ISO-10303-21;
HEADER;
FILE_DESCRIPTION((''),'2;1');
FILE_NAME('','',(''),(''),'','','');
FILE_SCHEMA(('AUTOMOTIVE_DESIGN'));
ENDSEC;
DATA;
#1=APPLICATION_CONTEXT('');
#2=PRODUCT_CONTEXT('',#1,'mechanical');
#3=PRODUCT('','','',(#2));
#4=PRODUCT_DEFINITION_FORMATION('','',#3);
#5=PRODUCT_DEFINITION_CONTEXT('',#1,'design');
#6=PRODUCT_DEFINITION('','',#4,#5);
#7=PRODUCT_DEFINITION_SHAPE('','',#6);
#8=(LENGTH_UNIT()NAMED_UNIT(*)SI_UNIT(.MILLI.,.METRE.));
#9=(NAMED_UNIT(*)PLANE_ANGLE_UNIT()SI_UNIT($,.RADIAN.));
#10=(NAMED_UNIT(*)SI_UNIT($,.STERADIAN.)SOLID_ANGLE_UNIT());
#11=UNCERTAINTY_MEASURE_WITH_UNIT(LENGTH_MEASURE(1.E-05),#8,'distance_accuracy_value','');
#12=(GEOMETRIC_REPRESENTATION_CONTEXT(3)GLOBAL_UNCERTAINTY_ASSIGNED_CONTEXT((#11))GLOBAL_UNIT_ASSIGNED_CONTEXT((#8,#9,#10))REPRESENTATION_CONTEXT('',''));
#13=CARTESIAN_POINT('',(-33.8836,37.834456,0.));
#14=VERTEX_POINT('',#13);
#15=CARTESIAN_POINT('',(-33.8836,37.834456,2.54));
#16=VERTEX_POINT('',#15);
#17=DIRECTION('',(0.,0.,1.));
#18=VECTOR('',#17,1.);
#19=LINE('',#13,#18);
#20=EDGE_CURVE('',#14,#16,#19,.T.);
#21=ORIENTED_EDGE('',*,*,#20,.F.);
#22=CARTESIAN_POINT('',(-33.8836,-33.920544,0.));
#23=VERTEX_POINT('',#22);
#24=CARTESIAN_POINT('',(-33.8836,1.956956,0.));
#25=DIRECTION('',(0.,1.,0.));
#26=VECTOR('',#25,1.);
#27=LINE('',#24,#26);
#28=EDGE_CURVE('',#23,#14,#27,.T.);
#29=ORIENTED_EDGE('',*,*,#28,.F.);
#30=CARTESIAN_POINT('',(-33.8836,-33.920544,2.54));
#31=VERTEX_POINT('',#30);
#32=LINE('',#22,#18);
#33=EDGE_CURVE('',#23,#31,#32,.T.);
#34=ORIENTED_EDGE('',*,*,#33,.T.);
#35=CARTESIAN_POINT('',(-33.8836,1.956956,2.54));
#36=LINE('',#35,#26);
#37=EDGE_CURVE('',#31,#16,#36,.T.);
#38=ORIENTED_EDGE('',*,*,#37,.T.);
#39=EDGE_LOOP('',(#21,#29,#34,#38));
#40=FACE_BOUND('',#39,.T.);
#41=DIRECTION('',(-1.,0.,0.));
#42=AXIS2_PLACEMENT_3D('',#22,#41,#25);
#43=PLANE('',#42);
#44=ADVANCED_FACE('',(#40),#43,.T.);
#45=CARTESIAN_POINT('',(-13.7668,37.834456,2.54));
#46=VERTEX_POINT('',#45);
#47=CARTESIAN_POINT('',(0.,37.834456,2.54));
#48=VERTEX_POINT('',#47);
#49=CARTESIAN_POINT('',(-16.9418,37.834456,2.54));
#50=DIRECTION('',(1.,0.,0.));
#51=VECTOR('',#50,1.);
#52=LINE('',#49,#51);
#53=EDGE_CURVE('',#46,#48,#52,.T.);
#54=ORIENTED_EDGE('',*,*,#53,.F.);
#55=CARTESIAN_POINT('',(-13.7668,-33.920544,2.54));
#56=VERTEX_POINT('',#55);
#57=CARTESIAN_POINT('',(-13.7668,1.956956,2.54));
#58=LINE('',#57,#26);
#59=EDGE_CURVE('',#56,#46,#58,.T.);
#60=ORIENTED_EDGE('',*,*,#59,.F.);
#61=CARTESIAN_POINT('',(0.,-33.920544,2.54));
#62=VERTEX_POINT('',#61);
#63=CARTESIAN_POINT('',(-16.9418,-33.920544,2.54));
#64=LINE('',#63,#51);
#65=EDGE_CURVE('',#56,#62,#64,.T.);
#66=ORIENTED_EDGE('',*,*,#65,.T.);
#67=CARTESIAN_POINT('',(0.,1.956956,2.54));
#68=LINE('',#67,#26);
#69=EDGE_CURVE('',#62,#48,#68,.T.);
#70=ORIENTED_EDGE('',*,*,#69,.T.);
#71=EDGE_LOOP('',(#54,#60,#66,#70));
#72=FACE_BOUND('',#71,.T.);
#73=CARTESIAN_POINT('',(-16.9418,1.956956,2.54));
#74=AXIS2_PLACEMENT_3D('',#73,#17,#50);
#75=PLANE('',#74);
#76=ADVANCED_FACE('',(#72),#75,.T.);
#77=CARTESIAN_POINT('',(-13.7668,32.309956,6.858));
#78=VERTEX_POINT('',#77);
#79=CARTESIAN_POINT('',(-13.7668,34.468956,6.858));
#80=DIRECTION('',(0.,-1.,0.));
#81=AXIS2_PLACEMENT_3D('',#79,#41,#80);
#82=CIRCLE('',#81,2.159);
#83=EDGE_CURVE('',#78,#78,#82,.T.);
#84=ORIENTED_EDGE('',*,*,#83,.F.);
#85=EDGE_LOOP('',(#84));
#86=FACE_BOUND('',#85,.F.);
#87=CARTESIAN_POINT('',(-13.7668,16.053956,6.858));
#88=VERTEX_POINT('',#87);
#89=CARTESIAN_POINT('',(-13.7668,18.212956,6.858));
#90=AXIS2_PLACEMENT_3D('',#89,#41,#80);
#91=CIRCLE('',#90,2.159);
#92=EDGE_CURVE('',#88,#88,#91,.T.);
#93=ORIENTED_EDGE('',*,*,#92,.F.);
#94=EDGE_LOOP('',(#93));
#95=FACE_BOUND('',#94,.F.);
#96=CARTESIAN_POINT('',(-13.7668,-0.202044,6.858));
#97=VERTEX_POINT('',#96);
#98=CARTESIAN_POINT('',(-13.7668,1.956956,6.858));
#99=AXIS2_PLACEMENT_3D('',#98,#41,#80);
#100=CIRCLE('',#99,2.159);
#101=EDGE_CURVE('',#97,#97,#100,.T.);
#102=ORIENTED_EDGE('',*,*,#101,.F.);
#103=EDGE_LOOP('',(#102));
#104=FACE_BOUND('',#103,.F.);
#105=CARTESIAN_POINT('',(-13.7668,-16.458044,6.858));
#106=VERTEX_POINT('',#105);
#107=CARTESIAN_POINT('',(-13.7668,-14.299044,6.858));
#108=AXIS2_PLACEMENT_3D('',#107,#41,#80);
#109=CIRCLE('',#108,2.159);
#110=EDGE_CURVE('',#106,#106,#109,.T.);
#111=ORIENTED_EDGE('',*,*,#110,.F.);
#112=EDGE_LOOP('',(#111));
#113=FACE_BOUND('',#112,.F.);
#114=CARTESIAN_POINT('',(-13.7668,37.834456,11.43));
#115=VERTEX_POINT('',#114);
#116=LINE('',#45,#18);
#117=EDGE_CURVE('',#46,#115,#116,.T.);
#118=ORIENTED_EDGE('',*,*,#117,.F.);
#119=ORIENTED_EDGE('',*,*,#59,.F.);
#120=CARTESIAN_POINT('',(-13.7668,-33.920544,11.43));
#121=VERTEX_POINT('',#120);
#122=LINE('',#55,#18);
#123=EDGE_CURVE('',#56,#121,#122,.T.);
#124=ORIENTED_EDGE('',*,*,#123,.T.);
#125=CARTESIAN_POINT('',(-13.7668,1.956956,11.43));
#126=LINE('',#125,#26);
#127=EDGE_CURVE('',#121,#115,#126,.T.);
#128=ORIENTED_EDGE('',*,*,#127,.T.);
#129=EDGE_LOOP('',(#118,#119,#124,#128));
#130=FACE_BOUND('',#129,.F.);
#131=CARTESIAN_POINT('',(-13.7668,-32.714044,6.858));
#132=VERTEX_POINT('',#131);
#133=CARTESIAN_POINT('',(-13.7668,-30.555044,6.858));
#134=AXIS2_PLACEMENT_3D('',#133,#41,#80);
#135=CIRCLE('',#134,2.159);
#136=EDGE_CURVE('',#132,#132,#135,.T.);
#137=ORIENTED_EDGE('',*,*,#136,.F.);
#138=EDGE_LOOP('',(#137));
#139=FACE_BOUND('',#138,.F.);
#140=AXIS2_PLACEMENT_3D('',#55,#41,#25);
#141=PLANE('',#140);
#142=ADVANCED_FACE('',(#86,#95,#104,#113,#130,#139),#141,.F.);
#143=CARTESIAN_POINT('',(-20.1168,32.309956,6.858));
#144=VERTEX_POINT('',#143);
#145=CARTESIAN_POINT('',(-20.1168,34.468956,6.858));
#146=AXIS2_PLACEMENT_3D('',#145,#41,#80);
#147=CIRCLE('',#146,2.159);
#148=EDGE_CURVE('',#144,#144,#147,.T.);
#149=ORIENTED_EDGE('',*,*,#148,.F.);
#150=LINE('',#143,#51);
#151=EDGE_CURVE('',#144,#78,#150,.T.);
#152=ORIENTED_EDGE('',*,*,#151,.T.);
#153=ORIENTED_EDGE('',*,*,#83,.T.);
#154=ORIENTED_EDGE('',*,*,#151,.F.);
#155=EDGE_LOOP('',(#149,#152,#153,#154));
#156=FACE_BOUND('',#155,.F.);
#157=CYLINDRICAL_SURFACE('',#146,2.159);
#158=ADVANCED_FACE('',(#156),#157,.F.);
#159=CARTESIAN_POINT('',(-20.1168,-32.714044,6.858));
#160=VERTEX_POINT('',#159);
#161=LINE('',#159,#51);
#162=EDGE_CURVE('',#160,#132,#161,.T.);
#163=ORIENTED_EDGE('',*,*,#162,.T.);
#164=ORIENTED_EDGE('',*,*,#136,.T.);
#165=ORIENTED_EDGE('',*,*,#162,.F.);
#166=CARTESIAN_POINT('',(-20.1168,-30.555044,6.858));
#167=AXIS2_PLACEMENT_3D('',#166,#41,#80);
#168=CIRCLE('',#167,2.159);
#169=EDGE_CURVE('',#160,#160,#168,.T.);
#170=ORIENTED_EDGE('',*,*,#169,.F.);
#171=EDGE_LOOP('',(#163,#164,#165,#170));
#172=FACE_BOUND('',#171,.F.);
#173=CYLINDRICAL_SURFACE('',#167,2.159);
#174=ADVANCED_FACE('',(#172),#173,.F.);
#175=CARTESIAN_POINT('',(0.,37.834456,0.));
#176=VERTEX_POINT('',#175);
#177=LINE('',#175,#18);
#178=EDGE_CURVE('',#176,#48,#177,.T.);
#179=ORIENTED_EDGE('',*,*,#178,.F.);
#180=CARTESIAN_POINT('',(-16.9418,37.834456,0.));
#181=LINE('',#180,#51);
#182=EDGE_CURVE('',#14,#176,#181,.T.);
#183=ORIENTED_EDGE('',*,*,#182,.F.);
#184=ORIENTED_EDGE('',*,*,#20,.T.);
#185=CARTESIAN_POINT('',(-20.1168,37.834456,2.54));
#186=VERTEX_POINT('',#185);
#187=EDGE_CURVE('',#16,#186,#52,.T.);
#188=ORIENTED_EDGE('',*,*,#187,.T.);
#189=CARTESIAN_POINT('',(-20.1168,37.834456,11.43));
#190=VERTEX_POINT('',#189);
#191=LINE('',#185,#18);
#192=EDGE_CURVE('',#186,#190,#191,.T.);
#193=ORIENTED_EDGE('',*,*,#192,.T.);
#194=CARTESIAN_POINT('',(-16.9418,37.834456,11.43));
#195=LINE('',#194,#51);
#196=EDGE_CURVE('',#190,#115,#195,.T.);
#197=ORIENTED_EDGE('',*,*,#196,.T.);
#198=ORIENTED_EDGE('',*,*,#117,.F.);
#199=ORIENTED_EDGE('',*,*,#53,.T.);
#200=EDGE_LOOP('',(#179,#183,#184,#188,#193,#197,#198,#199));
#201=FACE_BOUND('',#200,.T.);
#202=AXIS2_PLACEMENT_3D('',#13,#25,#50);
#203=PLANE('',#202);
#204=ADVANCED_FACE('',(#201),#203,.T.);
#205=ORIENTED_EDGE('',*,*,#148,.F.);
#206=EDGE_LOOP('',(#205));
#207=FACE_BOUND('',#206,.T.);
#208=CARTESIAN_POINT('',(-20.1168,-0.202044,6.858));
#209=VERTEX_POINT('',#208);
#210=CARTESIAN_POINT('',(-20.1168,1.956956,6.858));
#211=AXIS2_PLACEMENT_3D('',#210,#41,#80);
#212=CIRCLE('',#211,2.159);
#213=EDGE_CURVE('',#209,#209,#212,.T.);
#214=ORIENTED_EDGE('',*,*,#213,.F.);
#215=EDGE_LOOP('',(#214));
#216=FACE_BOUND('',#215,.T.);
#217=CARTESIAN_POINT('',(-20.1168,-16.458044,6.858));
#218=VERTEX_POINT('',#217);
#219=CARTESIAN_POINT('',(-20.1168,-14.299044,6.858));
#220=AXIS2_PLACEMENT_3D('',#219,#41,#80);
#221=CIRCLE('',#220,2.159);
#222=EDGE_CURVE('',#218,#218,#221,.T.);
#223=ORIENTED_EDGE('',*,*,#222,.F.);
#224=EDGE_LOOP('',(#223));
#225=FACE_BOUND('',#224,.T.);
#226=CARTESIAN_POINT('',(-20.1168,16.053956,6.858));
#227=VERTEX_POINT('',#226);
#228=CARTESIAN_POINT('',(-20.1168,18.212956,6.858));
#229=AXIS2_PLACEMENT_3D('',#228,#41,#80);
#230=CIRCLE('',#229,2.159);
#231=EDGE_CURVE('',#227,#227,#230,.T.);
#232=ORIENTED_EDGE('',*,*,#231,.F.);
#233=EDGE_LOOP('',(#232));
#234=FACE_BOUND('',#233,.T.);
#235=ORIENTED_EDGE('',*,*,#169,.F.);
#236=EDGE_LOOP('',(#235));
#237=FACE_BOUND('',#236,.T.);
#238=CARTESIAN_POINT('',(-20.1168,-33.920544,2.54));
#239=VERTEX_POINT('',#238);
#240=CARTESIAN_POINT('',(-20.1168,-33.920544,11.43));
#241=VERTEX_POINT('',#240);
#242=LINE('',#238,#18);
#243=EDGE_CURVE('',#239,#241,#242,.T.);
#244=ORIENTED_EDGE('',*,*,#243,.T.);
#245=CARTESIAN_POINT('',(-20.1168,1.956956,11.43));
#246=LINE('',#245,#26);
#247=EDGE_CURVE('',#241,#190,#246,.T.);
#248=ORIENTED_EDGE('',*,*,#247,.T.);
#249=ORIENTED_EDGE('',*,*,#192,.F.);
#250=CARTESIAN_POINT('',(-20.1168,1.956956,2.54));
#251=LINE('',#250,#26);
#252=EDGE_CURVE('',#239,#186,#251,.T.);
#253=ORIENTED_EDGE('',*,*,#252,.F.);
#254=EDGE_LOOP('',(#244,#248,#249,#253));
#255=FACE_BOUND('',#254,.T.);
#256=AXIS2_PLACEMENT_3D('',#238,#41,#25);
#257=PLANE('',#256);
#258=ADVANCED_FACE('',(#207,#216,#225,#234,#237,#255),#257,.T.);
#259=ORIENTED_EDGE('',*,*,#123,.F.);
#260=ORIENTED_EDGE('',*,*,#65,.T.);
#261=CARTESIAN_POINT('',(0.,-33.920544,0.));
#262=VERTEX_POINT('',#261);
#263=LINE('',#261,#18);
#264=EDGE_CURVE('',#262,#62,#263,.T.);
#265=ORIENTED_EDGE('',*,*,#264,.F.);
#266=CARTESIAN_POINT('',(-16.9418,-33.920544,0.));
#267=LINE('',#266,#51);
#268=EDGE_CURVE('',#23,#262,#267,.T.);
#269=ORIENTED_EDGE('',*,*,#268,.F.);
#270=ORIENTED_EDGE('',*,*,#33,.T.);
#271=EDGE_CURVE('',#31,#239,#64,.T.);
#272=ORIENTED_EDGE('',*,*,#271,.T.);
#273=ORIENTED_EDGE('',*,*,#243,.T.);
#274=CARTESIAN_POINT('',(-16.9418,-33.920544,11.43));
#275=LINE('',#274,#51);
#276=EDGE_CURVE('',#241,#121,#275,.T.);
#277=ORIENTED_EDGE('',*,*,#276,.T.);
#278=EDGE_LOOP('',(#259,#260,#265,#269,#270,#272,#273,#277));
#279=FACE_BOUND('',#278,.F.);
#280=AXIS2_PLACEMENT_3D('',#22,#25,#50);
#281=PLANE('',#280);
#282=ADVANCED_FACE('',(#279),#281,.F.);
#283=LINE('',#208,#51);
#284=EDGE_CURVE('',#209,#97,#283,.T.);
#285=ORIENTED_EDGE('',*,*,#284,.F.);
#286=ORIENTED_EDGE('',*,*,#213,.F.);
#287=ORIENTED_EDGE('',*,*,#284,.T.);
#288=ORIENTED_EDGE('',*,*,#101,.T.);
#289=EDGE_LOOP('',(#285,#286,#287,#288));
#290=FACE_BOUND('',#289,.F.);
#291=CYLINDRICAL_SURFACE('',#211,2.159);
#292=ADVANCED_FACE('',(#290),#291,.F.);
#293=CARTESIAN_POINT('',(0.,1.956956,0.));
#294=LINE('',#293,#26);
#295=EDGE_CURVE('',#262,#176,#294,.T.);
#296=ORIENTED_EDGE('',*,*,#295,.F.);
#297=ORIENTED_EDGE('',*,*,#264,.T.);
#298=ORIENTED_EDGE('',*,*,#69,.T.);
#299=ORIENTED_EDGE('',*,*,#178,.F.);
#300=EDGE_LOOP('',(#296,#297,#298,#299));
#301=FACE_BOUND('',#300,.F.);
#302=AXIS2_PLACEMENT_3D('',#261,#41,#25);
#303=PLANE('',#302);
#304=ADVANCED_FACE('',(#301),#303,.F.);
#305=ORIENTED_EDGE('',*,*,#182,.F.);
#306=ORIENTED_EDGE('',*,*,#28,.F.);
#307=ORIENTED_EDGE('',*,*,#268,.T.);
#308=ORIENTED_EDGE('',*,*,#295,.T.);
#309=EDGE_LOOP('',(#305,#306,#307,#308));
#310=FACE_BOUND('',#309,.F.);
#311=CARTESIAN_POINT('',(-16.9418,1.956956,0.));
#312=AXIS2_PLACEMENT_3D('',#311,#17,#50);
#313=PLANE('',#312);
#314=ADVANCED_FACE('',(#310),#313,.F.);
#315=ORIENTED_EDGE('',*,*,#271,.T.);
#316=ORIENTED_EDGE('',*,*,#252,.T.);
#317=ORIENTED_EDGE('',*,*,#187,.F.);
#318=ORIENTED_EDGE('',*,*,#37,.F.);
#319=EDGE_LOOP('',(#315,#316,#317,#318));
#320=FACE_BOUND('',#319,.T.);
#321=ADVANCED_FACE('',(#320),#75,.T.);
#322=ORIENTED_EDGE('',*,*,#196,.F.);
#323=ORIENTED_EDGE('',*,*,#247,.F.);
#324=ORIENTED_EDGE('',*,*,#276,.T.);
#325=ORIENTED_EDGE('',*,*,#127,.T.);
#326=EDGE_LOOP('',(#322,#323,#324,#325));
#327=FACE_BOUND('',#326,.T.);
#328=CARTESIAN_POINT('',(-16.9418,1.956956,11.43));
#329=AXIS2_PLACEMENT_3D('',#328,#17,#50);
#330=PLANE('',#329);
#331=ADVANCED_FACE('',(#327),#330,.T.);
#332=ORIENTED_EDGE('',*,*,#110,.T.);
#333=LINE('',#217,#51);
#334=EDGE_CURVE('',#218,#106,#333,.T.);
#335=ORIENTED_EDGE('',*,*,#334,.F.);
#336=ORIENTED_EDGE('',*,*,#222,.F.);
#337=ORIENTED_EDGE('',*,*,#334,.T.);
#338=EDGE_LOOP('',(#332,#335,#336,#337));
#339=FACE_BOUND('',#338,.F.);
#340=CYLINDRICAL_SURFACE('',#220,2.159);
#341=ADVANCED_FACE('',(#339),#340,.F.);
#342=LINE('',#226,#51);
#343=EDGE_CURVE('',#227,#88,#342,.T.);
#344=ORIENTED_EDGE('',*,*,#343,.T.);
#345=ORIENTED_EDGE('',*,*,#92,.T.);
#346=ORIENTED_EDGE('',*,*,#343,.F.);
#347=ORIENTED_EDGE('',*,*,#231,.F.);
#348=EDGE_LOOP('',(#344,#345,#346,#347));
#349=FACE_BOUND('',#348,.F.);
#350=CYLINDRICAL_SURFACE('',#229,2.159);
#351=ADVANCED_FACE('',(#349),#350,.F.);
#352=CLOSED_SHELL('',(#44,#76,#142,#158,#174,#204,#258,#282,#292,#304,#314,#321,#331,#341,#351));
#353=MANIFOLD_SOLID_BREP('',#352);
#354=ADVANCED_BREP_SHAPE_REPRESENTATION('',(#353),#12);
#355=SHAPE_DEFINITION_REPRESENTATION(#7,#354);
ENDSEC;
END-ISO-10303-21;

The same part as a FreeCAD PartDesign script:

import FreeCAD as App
import Part
import Sketcher

V = App.Vector
Q = App.Units.Quantity

doc = App.newDocument("Part")
body = doc.addObject("PartDesign::Body", "Body")

sketch1 = body.newObject("Sketcher::SketchObject", "Sketch")
sketch1.AttachmentSupport = (doc.getObject("XY_Plane"), [""])
sketch1.MapMode = "FlatFace"
sketch1.addGeometry([
    Part.LineSegment(V(-34, 38, 0), V(-34, -34, 0)),
    Part.LineSegment(V(-34, -34, 0), V(0, -34, 0)),
    Part.LineSegment(V(0, -34, 0), V(0, 38, 0)),
    Part.LineSegment(V(0, 38, 0), V(-34, 38, 0)),
], False)
sketch1.addConstraint([
    Sketcher.Constraint("Coincident", 0, 2, 1, 1),
    Sketcher.Constraint("Coincident", 1, 2, 2, 1),
    Sketcher.Constraint("Coincident", 2, 2, 3, 1),
    Sketcher.Constraint("Coincident", 3, 2, 0, 1),
    Sketcher.Constraint("Vertical", 0),
    Sketcher.Constraint("Horizontal", 1),
    Sketcher.Constraint("Vertical", 2),
    Sketcher.Constraint("Horizontal", 3),
    Sketcher.Constraint("PointOnObject", 1, 2, -2),
    Sketcher.Constraint("DistanceX", 1, 1, 1, 2, Q("1.334 in")),
    Sketcher.Constraint("DistanceY", 0, 2, 0, 1, Q("2.825 in")),
    Sketcher.Constraint("DistanceY", 0, 2, -1, 1, Q("33.920544 mm")),
])
pad1 = body.newObject("PartDesign::Pad", "Pad")
pad1.Profile = sketch1
pad1.Length = Q("0.1 in")

sketch2 = body.newObject("Sketcher::SketchObject", "Sketch001")
sketch2.AttachmentSupport = (doc.getObject("XY_Plane"), [""])
sketch2.MapMode = "FlatFace"
sketch2.AttachmentOffset = App.Placement(V(0, 0, 0.1 * 25.4), App.Rotation())
sketch2.addGeometry([
    Part.LineSegment(V(-20, 38, 0), V(-20, -34, 0)),
    Part.LineSegment(V(-20, -34, 0), V(-14, -34, 0)),
    Part.LineSegment(V(-14, -34, 0), V(-14, 38, 0)),
    Part.LineSegment(V(-14, 38, 0), V(-20, 38, 0)),
], False)
sketch2.addConstraint([
    Sketcher.Constraint("Coincident", 0, 2, 1, 1),
    Sketcher.Constraint("Coincident", 1, 2, 2, 1),
    Sketcher.Constraint("Coincident", 2, 2, 3, 1),
    Sketcher.Constraint("Coincident", 3, 2, 0, 1),
    Sketcher.Constraint("Vertical", 0),
    Sketcher.Constraint("Horizontal", 1),
    Sketcher.Constraint("Vertical", 2),
    Sketcher.Constraint("Horizontal", 3),
    Sketcher.Constraint("DistanceX", 1, 1, 1, 2, Q("0.25 in")),
    Sketcher.Constraint("DistanceY", 0, 2, 0, 1, Q("2.825 in")),
    Sketcher.Constraint("DistanceX", 0, 2, -1, 1, Q("0.792 in")),
    Sketcher.Constraint("DistanceY", 0, 2, -1, 1, Q("33.920544 mm")),
])
pad2 = body.newObject("PartDesign::Pad", "Pad001")
pad2.Profile = sketch2
pad2.Length = Q("0.35 in")

sketch3 = body.newObject("Sketcher::SketchObject", "Sketch002")
sketch3.AttachmentSupport = (doc.getObject("YZ_Plane"), [""])
sketch3.MapMode = "FlatFace"
sketch3.AttachmentOffset = App.Placement(V(0, 0, -0.792 * 25.4), App.Rotation())
sketch3.addGeometry([
    Part.Circle(V(18.2, 6.9, 0), V(0, 0, 1), 2.2),
    Part.Circle(V(34.5, 6.9, 0), V(0, 0, 1), 2.2),
    Part.Circle(V(2, 6.9, 0), V(0, 0, 1), 2.2),
    Part.Circle(V(-14.3, 6.9, 0), V(0, 0, 1), 2.2),
    Part.Circle(V(-30.6, 6.9, 0), V(0, 0, 1), 2.2),
], False)
sketch3.addConstraint([
    Sketcher.Constraint("Equal", 0, 1),
    Sketcher.Constraint("Equal", 1, 2),
    Sketcher.Constraint("Equal", 2, 3),
    Sketcher.Constraint("Equal", 3, 4),
    Sketcher.Constraint("Horizontal", 0, 3, 1, 3),
    Sketcher.Constraint("Horizontal", 1, 3, 2, 3),
    Sketcher.Constraint("Horizontal", 2, 3, 3, 3),
    Sketcher.Constraint("Horizontal", 3, 3, 4, 3),
    Sketcher.Constraint("Diameter", 0, Q("0.17 in")),
    Sketcher.Constraint("DistanceY", -1, 1, 0, 3, Q("0.27 in")),
    Sketcher.Constraint("DistanceX", 0, 3, 1, 3, Q("0.64 in")),
    Sketcher.Constraint("DistanceX", 2, 3, 0, 3, Q("0.64 in")),
    Sketcher.Constraint("DistanceX", 3, 3, 2, 3, Q("0.64 in")),
    Sketcher.Constraint("DistanceX", 4, 3, 3, 3, Q("0.64 in")),
    Sketcher.Constraint("DistanceX", -1, 1, 0, 3, Q("18.212956 mm")),
])
pocket1 = body.newObject("PartDesign::Pocket", "Pocket")
pocket1.Profile = sketch3
pocket1.Length = Q("0.25 in")
pocket1.Reversed = True

doc.recompute()
